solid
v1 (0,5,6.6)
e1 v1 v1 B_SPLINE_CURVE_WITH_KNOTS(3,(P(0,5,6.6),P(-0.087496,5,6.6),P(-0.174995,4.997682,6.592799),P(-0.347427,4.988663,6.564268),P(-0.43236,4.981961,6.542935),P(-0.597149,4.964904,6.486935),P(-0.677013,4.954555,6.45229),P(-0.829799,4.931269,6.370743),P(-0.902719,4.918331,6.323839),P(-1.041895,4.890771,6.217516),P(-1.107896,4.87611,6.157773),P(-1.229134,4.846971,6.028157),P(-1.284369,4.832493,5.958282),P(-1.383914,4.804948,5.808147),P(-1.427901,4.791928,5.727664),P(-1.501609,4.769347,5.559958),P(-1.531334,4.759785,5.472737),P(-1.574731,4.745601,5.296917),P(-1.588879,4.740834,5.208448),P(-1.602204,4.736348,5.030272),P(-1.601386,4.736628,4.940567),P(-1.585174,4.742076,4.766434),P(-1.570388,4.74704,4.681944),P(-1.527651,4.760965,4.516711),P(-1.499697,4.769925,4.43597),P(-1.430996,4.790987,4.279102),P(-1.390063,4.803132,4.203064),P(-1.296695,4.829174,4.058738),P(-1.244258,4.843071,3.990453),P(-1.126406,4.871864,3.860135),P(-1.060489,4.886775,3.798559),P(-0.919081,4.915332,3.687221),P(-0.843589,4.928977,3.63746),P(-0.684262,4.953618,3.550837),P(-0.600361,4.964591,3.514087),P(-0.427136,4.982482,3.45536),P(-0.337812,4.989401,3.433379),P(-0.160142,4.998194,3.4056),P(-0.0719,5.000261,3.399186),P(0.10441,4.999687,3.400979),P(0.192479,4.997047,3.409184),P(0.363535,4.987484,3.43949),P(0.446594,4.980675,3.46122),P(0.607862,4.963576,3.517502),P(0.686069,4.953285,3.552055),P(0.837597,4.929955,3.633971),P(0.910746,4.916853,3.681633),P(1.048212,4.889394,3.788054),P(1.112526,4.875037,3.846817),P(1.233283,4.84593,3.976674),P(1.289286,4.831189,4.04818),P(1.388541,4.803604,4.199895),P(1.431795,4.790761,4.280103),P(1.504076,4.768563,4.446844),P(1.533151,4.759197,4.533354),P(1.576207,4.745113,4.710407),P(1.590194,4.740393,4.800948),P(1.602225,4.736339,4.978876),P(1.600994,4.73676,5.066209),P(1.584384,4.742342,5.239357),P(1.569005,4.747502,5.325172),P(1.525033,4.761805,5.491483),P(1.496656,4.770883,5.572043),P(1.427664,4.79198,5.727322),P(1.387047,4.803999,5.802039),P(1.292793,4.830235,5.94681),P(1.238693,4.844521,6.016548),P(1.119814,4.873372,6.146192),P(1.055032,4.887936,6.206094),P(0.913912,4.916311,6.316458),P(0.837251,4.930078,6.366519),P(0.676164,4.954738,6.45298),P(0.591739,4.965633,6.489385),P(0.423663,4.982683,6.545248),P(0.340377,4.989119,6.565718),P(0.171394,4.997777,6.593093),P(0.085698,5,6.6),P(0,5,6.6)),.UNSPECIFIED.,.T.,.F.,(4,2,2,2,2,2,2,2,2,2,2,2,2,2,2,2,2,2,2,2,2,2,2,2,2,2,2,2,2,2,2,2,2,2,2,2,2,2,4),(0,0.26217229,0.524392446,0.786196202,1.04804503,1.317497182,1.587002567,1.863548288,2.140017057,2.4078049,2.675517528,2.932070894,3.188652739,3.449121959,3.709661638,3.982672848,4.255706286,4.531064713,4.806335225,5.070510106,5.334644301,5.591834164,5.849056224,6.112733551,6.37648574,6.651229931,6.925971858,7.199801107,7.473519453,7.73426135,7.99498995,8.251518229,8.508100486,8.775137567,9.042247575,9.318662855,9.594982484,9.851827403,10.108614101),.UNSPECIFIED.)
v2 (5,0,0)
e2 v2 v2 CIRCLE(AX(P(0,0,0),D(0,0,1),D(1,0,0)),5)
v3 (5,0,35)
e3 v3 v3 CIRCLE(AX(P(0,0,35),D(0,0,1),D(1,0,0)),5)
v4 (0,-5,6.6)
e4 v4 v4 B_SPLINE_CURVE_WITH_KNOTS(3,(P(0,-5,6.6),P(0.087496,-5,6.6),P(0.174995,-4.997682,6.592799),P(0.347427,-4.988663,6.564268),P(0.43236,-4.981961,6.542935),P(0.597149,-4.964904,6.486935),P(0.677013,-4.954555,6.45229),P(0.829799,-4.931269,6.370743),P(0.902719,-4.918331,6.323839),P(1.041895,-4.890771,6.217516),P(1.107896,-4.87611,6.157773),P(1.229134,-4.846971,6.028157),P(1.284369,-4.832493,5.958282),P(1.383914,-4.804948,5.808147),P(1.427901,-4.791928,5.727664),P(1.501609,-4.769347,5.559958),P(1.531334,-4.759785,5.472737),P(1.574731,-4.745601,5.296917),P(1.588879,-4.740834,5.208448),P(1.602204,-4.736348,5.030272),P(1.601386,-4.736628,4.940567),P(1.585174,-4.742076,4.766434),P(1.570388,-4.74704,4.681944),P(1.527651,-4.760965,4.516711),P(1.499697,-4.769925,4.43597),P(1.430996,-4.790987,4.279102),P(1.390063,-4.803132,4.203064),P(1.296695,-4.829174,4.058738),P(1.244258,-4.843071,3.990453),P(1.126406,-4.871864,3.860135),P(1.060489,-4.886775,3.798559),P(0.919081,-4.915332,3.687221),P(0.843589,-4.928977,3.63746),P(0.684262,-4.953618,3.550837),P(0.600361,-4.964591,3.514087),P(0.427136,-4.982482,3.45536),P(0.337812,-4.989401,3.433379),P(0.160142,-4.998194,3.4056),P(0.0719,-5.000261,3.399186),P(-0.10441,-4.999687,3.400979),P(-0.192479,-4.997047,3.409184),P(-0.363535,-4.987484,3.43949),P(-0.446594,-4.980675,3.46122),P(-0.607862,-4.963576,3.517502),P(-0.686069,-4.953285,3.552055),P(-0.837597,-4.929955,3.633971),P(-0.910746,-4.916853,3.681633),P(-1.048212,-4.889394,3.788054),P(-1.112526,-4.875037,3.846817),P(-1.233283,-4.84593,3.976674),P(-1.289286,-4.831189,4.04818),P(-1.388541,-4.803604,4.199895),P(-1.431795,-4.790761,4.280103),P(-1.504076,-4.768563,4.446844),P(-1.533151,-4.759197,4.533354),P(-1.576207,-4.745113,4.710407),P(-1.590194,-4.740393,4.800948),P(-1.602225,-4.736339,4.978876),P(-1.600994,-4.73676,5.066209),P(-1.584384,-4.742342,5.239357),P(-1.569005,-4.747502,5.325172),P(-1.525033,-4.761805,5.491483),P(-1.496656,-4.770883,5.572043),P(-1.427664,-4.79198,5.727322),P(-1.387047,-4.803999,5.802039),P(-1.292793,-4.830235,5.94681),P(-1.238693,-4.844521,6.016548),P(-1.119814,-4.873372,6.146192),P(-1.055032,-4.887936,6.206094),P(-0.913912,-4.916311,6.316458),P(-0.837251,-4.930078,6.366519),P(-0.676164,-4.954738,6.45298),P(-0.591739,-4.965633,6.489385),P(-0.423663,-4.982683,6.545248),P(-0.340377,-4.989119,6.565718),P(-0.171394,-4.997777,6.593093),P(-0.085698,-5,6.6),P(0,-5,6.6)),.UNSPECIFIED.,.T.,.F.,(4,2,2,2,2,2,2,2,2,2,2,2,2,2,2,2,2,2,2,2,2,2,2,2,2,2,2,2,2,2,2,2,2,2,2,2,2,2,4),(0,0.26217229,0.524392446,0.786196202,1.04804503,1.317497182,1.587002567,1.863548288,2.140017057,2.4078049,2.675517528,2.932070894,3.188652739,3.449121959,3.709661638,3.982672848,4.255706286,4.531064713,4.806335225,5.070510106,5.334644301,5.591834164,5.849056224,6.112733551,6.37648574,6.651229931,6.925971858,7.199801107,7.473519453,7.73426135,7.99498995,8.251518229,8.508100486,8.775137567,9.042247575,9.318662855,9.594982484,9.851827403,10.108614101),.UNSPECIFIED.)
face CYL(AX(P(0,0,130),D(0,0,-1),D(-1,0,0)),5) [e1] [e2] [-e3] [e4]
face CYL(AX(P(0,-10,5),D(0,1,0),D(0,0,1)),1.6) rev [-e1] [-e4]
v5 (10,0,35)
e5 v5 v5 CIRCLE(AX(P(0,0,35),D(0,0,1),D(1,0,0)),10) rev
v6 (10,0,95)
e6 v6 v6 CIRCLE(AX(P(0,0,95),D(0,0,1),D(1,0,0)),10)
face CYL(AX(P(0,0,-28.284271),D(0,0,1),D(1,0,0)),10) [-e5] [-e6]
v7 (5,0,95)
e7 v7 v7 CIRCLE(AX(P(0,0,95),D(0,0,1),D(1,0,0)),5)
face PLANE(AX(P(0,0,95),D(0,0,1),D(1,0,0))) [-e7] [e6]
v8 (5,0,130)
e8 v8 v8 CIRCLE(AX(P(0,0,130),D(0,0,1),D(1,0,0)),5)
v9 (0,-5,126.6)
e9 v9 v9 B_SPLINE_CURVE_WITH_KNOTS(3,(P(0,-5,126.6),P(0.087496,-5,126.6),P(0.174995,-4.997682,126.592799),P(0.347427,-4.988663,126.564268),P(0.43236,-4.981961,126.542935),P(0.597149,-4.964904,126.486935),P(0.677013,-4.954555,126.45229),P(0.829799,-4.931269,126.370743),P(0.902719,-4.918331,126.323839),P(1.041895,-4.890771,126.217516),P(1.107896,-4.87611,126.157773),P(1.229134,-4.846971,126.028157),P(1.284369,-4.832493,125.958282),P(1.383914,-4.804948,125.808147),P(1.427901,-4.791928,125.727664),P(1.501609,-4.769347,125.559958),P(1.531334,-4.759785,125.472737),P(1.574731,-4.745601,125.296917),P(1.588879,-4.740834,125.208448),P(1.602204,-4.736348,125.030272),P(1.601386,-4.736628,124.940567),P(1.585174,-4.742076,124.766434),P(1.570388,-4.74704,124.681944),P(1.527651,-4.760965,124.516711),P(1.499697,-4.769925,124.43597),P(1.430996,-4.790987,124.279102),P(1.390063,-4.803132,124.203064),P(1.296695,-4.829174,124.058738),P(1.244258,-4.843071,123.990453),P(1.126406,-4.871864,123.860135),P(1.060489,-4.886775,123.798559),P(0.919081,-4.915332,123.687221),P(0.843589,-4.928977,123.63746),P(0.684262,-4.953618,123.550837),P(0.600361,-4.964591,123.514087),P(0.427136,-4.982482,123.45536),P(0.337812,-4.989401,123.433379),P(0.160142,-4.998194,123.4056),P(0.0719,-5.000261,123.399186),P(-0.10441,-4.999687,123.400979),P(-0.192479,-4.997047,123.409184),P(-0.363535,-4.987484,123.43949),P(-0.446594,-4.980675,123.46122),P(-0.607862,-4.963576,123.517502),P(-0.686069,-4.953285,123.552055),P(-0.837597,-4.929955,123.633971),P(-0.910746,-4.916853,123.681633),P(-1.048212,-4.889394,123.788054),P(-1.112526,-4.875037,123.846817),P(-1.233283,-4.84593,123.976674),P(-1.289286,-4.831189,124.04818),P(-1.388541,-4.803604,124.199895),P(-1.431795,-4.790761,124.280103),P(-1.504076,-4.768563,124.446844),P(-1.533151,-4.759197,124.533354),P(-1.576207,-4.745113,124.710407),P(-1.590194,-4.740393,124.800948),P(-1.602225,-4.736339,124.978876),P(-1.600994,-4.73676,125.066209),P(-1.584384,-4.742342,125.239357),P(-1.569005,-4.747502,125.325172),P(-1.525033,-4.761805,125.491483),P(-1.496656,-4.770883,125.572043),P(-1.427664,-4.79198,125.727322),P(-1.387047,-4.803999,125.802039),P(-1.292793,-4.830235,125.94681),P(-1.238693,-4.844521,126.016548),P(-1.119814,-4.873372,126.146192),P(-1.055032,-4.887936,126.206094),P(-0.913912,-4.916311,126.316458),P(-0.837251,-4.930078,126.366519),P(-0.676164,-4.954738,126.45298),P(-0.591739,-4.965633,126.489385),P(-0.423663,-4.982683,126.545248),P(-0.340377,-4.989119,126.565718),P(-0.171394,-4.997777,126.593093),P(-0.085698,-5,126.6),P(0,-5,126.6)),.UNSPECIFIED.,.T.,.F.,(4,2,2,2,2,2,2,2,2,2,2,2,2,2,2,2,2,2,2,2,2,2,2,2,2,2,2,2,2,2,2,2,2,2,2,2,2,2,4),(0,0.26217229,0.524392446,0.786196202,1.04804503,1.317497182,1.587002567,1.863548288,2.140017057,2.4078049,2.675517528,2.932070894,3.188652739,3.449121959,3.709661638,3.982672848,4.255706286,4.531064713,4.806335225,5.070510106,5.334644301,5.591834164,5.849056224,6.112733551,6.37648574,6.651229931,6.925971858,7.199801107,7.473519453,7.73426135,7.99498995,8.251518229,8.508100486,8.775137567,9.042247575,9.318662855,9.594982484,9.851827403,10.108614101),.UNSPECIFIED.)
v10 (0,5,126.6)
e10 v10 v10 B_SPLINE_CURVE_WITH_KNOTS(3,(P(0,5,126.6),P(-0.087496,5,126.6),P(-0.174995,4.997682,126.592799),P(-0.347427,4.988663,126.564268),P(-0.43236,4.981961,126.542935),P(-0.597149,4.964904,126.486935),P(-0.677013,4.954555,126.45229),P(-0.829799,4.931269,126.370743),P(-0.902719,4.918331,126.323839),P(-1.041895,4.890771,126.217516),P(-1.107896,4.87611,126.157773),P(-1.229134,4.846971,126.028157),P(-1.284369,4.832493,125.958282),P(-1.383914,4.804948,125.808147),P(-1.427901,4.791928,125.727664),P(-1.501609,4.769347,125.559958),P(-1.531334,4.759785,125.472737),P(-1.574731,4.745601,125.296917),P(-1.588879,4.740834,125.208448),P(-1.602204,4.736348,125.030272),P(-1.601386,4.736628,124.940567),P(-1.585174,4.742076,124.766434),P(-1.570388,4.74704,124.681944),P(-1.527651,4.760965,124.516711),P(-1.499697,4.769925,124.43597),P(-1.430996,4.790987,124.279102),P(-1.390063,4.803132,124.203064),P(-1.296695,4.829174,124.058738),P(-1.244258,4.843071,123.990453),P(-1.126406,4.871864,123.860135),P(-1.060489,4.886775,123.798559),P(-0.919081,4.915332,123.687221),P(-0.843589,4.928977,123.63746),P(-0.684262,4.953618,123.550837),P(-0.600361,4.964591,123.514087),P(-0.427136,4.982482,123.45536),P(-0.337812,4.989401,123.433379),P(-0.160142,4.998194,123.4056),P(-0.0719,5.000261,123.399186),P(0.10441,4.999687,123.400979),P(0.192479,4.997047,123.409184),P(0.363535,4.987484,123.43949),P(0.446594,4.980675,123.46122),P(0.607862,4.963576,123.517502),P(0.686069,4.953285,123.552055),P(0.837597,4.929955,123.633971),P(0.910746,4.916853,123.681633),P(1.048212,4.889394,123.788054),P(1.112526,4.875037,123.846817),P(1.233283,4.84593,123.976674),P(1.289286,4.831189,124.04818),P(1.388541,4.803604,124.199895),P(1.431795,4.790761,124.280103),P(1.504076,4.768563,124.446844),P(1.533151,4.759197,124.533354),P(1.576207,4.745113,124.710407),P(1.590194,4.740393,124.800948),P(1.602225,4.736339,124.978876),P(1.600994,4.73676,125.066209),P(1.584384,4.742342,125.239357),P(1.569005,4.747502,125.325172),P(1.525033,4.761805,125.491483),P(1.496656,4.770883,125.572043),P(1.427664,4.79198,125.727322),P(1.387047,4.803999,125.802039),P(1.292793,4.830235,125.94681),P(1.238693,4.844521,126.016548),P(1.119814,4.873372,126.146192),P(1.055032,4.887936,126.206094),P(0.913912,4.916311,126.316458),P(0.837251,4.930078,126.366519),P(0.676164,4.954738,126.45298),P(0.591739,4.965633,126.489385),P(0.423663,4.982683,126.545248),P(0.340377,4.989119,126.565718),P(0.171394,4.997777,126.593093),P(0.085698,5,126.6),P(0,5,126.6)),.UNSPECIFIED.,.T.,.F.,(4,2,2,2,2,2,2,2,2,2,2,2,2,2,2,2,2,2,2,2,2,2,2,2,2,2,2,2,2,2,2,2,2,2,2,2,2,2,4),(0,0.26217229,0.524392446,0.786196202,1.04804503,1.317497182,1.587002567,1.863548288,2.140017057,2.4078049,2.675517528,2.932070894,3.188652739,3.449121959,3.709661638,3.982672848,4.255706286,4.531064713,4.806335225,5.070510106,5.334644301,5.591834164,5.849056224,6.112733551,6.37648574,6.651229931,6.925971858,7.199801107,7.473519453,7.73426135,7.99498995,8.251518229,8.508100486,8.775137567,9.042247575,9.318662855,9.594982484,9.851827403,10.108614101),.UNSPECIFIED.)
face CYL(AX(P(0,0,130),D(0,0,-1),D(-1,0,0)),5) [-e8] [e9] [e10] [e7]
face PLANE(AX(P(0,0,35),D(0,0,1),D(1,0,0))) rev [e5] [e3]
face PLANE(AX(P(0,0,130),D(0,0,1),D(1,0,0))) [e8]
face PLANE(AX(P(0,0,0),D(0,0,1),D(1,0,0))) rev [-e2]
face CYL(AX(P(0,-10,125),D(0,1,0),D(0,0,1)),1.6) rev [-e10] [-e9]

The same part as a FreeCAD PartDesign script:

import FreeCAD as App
import Part
import Sketcher

V = App.Vector

doc = App.newDocument("Part")
body = doc.addObject("PartDesign::Body", "Body")

sketch1 = body.newObject("Sketcher::SketchObject", "Sketch")
sketch1.AttachmentSupport = (doc.getObject("XY_Plane"), [""])
sketch1.MapMode = "FlatFace"
sketch1.addGeometry(Part.Circle(V(0, 0, 0), V(0, 0, 1), 5), False)
sketch1.addConstraint([
    Sketcher.Constraint("Coincident", 0, 3, -1, 1),
    Sketcher.Constraint("Diameter", 0, 10.0),
])
pad1 = body.newObject("PartDesign::Pad", "Pad")
pad1.Profile = sketch1
pad1.Length = 130

sketch2 = body.newObject("Sketcher::SketchObject", "Sketch001")
sketch2.AttachmentSupport = (doc.getObject("XY_Plane"), [""])
sketch2.MapMode = "FlatFace"
sketch2.AttachmentOffset = App.Placement(V(0, 0, 95), App.Rotation())
sketch2.addGeometry(Part.Circle(V(0, 0, 0), V(0, 0, 1), 10), False)
sketch2.addConstraint([
    Sketcher.Constraint("Coincident", 0, 3, -1, 1),
    Sketcher.Constraint("Diameter", 0, 20.0),
])
pad2 = body.newObject("PartDesign::Pad", "Pad001")
pad2.Profile = sketch2
pad2.Length = 60
pad2.Reversed = True

sketch3 = body.newObject("Sketcher::SketchObject", "Sketch002")
sketch3.AttachmentSupport = (doc.getObject("XZ_Plane"), [""])
sketch3.MapMode = "FlatFace"
sketch3.addGeometry([
    Part.Circle(V(0, 125, 0), V(0, 0, 1), 1.6),
    Part.Circle(V(0, 5, 0), V(0, 0, 1), 1.6),
], False)
sketch3.addConstraint([
    Sketcher.Constraint("Equal", 0, 1),
    Sketcher.Constraint("PointOnObject", 0, 3, -2),
    Sketcher.Constraint("PointOnObject", 1, 3, -2),
    Sketcher.Constraint("Diameter", 0, 3.2),
    Sketcher.Constraint("DistanceY", -1, 1, 0, 3, 125.0),
    Sketcher.Constraint("DistanceY", -1, 1, 1, 3, 5.0),
])
pocket1 = body.newObject("PartDesign::Pocket", "Pocket")
pocket1.Profile = sketch3
pocket1.Type = "ThroughAll"
pocket1.Midplane = True

doc.recompute()
